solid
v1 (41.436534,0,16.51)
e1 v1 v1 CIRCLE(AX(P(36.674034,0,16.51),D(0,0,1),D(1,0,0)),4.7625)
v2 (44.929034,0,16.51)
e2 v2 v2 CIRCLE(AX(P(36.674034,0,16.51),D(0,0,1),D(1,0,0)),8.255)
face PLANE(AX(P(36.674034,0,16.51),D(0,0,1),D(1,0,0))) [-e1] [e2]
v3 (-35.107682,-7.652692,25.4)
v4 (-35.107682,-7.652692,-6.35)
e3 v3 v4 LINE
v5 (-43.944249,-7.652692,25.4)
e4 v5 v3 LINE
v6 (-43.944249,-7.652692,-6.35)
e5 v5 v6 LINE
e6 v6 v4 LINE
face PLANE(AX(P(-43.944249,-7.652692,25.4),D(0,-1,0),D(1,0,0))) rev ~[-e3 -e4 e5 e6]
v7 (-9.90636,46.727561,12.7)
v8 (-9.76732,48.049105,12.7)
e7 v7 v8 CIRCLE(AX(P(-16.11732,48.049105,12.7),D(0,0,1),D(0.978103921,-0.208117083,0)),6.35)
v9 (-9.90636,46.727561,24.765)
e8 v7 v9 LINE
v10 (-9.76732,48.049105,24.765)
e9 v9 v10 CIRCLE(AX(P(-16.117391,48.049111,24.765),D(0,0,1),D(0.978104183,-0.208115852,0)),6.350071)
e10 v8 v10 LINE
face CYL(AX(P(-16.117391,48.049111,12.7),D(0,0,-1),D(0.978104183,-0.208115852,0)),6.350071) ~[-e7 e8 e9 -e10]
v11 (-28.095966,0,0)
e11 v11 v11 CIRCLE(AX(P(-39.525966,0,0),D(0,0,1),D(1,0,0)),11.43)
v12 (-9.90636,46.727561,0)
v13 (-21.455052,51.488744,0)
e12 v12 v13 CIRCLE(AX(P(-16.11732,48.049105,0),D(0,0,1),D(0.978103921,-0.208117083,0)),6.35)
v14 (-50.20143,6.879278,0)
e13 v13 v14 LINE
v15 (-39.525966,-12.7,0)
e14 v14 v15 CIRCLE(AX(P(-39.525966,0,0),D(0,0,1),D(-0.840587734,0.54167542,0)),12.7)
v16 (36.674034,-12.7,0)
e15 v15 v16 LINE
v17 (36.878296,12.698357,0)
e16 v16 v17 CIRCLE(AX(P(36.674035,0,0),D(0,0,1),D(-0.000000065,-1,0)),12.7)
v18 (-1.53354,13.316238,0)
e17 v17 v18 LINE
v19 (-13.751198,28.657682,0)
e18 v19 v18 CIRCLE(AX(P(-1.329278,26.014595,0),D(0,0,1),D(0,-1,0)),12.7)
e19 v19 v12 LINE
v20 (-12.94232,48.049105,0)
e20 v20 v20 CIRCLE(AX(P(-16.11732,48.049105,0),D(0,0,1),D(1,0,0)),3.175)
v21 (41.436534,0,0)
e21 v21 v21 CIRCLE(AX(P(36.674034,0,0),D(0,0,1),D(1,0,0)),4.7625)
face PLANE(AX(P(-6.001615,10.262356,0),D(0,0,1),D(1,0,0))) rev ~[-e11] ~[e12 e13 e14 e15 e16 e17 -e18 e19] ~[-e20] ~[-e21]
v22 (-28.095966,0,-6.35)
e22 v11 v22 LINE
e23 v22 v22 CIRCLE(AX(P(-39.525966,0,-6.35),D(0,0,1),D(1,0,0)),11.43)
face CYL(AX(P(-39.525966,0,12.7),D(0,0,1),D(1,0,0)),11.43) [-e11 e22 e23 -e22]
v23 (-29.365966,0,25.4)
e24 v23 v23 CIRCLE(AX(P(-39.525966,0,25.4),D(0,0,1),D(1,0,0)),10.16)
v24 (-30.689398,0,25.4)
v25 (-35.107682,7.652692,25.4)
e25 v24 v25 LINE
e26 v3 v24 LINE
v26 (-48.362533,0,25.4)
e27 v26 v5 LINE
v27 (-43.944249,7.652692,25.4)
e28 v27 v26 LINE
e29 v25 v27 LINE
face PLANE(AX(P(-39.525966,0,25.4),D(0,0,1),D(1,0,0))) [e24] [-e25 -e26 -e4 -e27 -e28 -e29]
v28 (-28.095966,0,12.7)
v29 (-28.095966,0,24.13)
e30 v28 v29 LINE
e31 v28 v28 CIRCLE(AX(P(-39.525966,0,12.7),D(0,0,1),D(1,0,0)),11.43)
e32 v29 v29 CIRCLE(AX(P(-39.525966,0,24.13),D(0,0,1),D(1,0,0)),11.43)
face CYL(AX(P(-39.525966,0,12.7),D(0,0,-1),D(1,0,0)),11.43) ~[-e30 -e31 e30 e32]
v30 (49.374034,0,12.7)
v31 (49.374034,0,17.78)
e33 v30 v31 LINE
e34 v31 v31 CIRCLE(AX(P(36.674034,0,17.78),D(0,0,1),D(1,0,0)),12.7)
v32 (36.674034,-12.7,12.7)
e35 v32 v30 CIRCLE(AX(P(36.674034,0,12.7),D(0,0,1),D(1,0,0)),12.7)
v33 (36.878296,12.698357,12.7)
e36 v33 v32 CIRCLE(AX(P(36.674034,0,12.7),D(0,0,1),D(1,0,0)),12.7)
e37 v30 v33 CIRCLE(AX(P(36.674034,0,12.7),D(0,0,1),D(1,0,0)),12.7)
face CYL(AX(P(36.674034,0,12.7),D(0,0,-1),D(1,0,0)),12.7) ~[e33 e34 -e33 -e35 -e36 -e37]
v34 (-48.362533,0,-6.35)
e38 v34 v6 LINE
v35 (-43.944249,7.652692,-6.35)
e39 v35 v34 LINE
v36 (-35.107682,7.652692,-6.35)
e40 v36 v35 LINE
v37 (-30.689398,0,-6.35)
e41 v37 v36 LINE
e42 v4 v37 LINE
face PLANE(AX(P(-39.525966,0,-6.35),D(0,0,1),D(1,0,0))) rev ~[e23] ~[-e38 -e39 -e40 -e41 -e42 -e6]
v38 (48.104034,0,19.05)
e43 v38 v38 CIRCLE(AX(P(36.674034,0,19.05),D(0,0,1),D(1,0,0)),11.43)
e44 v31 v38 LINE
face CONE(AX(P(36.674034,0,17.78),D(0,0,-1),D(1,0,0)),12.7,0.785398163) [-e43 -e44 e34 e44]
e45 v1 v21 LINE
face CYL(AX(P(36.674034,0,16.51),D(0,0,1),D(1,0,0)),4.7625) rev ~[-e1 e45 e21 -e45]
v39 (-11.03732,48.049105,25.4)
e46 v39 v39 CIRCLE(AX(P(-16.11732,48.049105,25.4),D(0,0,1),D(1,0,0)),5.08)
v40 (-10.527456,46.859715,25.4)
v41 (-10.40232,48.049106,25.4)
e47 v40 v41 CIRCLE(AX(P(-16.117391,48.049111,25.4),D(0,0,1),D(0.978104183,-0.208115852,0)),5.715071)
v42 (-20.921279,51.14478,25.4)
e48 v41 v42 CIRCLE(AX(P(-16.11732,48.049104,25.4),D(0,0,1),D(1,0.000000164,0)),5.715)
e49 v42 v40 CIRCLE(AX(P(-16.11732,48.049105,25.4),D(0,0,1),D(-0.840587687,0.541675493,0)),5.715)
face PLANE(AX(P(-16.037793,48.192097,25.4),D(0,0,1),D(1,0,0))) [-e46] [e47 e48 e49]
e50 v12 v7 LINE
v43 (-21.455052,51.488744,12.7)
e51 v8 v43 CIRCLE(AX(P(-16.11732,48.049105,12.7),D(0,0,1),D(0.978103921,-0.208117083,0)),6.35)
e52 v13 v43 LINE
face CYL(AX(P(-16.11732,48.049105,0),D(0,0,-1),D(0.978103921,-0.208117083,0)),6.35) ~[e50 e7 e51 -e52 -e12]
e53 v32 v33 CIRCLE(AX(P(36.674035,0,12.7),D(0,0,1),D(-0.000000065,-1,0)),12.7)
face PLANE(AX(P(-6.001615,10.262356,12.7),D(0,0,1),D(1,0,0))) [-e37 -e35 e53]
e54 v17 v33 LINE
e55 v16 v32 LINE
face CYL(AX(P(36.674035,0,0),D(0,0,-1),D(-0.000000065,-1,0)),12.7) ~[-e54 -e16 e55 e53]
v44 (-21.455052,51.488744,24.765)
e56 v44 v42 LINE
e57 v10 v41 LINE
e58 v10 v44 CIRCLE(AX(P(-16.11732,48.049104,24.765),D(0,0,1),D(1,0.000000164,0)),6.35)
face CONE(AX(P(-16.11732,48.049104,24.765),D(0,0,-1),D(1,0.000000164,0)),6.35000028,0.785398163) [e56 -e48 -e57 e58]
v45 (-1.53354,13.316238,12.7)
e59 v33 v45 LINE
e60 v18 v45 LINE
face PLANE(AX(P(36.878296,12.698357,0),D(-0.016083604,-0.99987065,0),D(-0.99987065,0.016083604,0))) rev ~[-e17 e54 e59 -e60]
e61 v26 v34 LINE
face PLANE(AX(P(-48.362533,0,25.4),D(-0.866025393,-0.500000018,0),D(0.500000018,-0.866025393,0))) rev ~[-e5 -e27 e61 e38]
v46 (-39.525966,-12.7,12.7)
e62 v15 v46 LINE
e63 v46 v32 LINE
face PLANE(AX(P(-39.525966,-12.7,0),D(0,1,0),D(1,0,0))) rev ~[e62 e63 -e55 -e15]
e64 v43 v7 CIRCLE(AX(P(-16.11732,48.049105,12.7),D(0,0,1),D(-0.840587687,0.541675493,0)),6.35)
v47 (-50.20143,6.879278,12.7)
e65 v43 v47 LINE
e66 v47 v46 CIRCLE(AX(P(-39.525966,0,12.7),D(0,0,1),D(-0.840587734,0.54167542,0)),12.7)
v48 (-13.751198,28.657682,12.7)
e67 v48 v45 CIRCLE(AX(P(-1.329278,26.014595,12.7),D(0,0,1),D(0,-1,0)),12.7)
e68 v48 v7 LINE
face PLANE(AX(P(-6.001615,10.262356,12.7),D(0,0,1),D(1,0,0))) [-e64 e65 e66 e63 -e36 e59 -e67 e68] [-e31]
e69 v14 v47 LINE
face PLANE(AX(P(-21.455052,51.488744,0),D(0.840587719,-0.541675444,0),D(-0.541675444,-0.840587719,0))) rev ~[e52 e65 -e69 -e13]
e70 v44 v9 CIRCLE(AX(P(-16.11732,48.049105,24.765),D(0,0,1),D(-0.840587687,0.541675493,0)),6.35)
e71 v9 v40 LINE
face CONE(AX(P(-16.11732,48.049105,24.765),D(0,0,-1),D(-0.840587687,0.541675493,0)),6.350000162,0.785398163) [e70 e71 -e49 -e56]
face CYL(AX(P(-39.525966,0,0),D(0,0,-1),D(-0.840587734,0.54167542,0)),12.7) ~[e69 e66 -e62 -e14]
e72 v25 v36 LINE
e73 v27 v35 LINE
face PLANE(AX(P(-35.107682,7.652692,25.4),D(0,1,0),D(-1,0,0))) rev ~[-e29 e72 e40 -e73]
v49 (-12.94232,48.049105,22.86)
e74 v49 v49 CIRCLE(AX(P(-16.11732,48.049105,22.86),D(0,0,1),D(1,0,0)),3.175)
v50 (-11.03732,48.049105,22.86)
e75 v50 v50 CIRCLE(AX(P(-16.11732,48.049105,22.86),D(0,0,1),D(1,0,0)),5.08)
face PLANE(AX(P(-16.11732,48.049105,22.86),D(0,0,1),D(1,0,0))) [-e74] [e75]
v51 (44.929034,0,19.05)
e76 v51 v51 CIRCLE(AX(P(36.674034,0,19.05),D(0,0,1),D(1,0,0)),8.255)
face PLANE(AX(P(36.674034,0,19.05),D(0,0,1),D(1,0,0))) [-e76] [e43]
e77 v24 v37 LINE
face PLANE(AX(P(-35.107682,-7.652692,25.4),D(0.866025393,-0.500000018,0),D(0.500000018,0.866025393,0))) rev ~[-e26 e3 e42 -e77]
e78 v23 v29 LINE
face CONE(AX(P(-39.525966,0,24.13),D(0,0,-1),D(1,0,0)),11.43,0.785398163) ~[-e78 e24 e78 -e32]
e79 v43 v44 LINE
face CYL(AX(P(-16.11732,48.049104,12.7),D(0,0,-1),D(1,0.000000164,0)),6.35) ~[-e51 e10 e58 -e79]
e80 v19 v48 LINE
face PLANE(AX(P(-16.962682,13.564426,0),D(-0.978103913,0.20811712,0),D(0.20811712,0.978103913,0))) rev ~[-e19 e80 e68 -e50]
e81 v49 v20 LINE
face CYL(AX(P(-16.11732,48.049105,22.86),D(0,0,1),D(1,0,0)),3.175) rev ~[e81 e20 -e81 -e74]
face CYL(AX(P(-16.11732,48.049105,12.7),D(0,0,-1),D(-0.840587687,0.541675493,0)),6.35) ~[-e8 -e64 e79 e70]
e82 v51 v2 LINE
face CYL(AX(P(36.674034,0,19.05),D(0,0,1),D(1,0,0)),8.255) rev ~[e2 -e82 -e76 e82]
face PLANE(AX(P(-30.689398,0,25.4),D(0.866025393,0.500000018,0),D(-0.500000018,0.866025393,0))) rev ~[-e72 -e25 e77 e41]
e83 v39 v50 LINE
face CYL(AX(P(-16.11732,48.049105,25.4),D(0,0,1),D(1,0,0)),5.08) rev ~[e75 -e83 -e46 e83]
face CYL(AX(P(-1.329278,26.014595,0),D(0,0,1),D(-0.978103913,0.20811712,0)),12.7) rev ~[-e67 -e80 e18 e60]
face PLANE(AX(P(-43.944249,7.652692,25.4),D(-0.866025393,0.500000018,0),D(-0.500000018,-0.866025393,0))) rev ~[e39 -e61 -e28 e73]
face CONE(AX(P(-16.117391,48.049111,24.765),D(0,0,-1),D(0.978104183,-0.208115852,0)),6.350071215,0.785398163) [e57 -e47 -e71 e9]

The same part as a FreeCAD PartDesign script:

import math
import FreeCAD as App
import Part
import Sketcher

V = App.Vector
Q = App.Units.Quantity


def edges_at(feature, points):
    """Names of the edges that pass closest to the given points."""
    edges = feature.Shape.Edges
    near = lambda p: min(range(len(edges)), key=lambda i: edges[i].distToShape(Part.Vertex(*p))[0])
    return sorted({f"Edge{near(p) + 1}" for p in points})

doc = App.newDocument("Part")
body = doc.addObject("PartDesign::Body", "Body")

# Sketch on XY plane
sketch1 = body.newObject("Sketcher::SketchObject", "Sketch")
sketch1.AttachmentSupport = (doc.getObject("XY_Plane"), [""])
sketch1.MapMode = "FlatFace"
sketch1.addGeometry(Part.LineSegment(V(-21, 51, 0), V(-50, 7, 0)), False)
sketch1.addGeometry(Part.ArcOfCircle(Part.Circle(V(-40, 0, 0), V(0, 0, 1), 13), math.radians(147), math.radians(270)), False)
sketch1.addGeometry(Part.LineSegment(V(-40, -13, 0), V(37, -13, 0)), False)
sketch1.addGeometry(Part.ArcOfCircle(Part.Circle(V(37, 0, 0), V(0, 0, 1), 13), math.radians(-90), math.radians(89)), False)
sketch1.addGeometry(Part.LineSegment(V(37, 13, 0), V(-17, 14, 0)), False)
sketch1.addGeometry(Part.LineSegment(V(-17, 14, 0), V(-10, 47, 0)), False)
sketch1.addGeometry(Part.ArcOfCircle(Part.Circle(V(-16, 48, 0), V(0, 0, 1), 6), math.radians(-12), math.radians(147)), False)
sketch1.addConstraint(Sketcher.Constraint("Tangent", 0, 2, 1, 1))
sketch1.addConstraint(Sketcher.Constraint("Tangent", 1, 2, 2, 1))
sketch1.addConstraint(Sketcher.Constraint("Tangent", 2, 2, 3, 1))
sketch1.addConstraint(Sketcher.Constraint("Tangent", 3, 2, 4, 1))
sketch1.addConstraint(Sketcher.Constraint("Coincident", 4, 2, 5, 1))
sketch1.addConstraint(Sketcher.Constraint("Tangent", 5, 2, 6, 1))
sketch1.addConstraint(Sketcher.Constraint("Tangent", 6, 2, 0, 1))
sketch1.addConstraint(Sketcher.Constraint("Horizontal", 2))
sketch1.addConstraint(Sketcher.Constraint("Equal", 1, 3))
sketch1.addConstraint(Sketcher.Constraint("PointOnObject", 1, 3, -1))
sketch1.addConstraint(Sketcher.Constraint("Radius", 1, Q("0.5 in")))
sketch1.addConstraint(Sketcher.Constraint("DistanceX", 2, 1, 2, 2, Q("3 in")))
sketch1.addConstraint(Sketcher.Constraint("Radius", 6, Q("0.25 in")))
sketch1.addConstraint(Sketcher.Constraint("DistanceX", 6, 3, -1, 1, 16.11732))
sketch1.addConstraint(Sketcher.Constraint("DistanceX", 0, 2, -1, 1, 50.20143))
sketch1.addConstraint(Sketcher.Constraint("DistanceY", -1, 1, 0, 2, 6.879278))
sketch1.addConstraint(Sketcher.Constraint("DistanceX", 5, 2, -1, 1, 9.90636))
sketch1.addConstraint(Sketcher.Constraint("DistanceX", 3, 3, 3, 2, 0.204261))
pad1 = body.newObject("PartDesign::Pad", "Pad")
pad1.Profile = sketch1
pad1.Length = Q("0.5 in")

# Sketch on XY plane
sketch2 = body.newObject("Sketcher::SketchObject", "Sketch001")
sketch2.AttachmentSupport = (doc.getObject("XY_Plane"), [""])
sketch2.MapMode = "FlatFace"
sketch2.addGeometry(Part.LineSegment(V(-21, 51, 0), V(-50, 7, 0)), False)
sketch2.addGeometry(Part.ArcOfCircle(Part.Circle(V(-40, 0, 0), V(0, 0, 1), 13), math.radians(147), math.radians(270)), False)
sketch2.addGeometry(Part.LineSegment(V(-40, -13, 0), V(37, -13, 0)), False)
sketch2.addGeometry(Part.ArcOfCircle(Part.Circle(V(37, 0, 0), V(0, 0, 1), 13), math.radians(-90), math.radians(89)), False)
sketch2.addGeometry(Part.LineSegment(V(37, 13, 0), V(-17, 14, 0)), False)
sketch2.addGeometry(Part.LineSegment(V(-17, 14, 0), V(-10, 47, 0)), False)
sketch2.addGeometry(Part.ArcOfCircle(Part.Circle(V(-16, 48, 0), V(0, 0, 1), 6), math.radians(-12), math.radians(147)), False)
sketch2.addConstraint(Sketcher.Constraint("Tangent", 0, 2, 1, 1))
sketch2.addConstraint(Sketcher.Constraint("Tangent", 1, 2, 2, 1))
sketch2.addConstraint(Sketcher.Constraint("Tangent", 2, 2, 3, 1))
sketch2.addConstraint(Sketcher.Constraint("Tangent", 3, 2, 4, 1))
sketch2.addConstraint(Sketcher.Constraint("Coincident", 4, 2, 5, 1))
sketch2.addConstraint(Sketcher.Constraint("Tangent", 5, 2, 6, 1))
sketch2.addConstraint(Sketcher.Constraint("Tangent", 6, 2, 0, 1))
sketch2.addConstraint(Sketcher.Constraint("Horizontal", 2))
sketch2.addConstraint(Sketcher.Constraint("Equal", 1, 3))
sketch2.addConstraint(Sketcher.Constraint("PointOnObject", 1, 3, -1))
sketch2.addConstraint(Sketcher.Constraint("Radius", 1, Q("0.5 in")))
sketch2.addConstraint(Sketcher.Constraint("DistanceX", 2, 1, 2, 2, Q("3 in")))
sketch2.addConstraint(Sketcher.Constraint("Radius", 6, Q("0.25 in")))
sketch2.addConstraint(Sketcher.Constraint("DistanceX", 6, 3, -1, 1, 16.11732))
sketch2.addConstraint(Sketcher.Constraint("DistanceX", 0, 2, -1, 1, 50.20143))
sketch2.addConstraint(Sketcher.Constraint("DistanceY", -1, 1, 0, 2, 6.879278))
sketch2.addConstraint(Sketcher.Constraint("DistanceX", 5, 2, -1, 1, 9.90636))
sketch2.addConstraint(Sketcher.Constraint("DistanceX", 3, 3, 3, 2, 0.204261))
pad2 = body.newObject("PartDesign::Pad", "Pad001")
pad2.Profile = sketch2
pad2.Length = Q("0.5 in")

# Sketch on XY plane
sketch3 = body.newObject("Sketcher::SketchObject", "Sketch002")
sketch3.AttachmentSupport = (doc.getObject("XY_Plane"), [""])
sketch3.MapMode = "FlatFace"
sketch3.AttachmentOffset = App.Placement(V(0, 0, 0.5 * 25.4), App.Rotation())
sketch3.addGeometry(Part.ArcOfCircle(Part.Circle(V(-16.117391, 48.049111, 0), V(0, 0, 1), 6.350071), math.radians(-12.011959), math.radians(-0.000059)), False)
sketch3.addGeometry(Part.ArcOfCircle(Part.Circle(V(-16.11732, 48.049104, 0), V(0, 0, 1), 6.35), math.radians(0.000009), math.radians(147.202225)), False)
sketch3.addGeometry(Part.ArcOfCircle(Part.Circle(V(-16.11732, 48.049105, 0), V(0, 0, 1), 6.35), math.radians(147.20223), math.radians(347.987969)), False)
sketch3.addConstraint(Sketcher.Constraint("Coincident", 0, 2, 1, 1))
sketch3.addConstraint(Sketcher.Constraint("Coincident", 1, 2, 2, 1))
sketch3.addConstraint(Sketcher.Constraint("Coincident", 2, 2, 0, 1))
sketch3.addConstraint(Sketcher.Constraint("Coincident", 2, 3, 1, 3))
sketch3.addConstraint(Sketcher.Constraint("Radius", 1, Q("0.25 in")))
sketch3.addConstraint(Sketcher.Constraint("Radius", 0, 6.350071))
sketch3.addConstraint(Sketcher.Constraint("DistanceX", 0, 3, -1, 1, 16.117391))
sketch3.addConstraint(Sketcher.Constraint("DistanceY", -1, 1, 0, 3, 48.049111))
sketch3.addConstraint(Sketcher.Constraint("DistanceX", 2, 2, -1, 1, 9.90636))
sketch3.addConstraint(Sketcher.Constraint("DistanceX", 1, 2, 0, 3, 5.337661))
sketch3.addConstraint(Sketcher.Constraint("DistanceY", 0, 2, 1, 2, 3.439639))
pad3 = body.newObject("PartDesign::Pad", "Pad002")
pad3.Profile = sketch3
pad3.Length = Q("0.5 in")

# Sketch on XY plane
sketch4 = body.newObject("Sketcher::SketchObject", "Sketch003")
sketch4.AttachmentSupport = (doc.getObject("XY_Plane"), [""])
sketch4.MapMode = "FlatFace"
sketch4.AttachmentOffset = App.Placement(V(0, 0, 1 * 25.4), App.Rotation())
sketch4.addGeometry(Part.Circle(V(-16, 48, 0), V(0, 0, 1), 5), False)
sketch4.addConstraint(Sketcher.Constraint("Diameter", 0, Q("0.4 in")))
sketch4.addConstraint(Sketcher.Constraint("DistanceX", 0, 3, -1, 1, 16.11732))
sketch4.addConstraint(Sketcher.Constraint("DistanceY", -1, 1, 0, 3, 48.049105))
pocket1 = body.newObject("PartDesign::Pocket", "Pocket")
pocket1.Profile = sketch4
pocket1.Length = Q("0.1 in")
doc.recompute()

chamfer = body.newObject("PartDesign::Chamfer", "Chamfer")
chamfer.Base = (pocket1, edges_at(pocket1, [(-18.538, 42.178, 25.4)]))
chamfer.Size = Q("0.025 in")

# Sketch on XY plane
sketch5 = body.newObject("Sketcher::SketchObject", "Sketch004")
sketch5.AttachmentSupport = (doc.getObject("XY_Plane"), [""])
sketch5.MapMode = "FlatFace"
sketch5.AttachmentOffset = App.Placement(V(0, 0, 0.9 * 25.4), App.Rotation())
sketch5.addGeometry(Part.Circle(V(-16.1, 48, 0), V(0, 0, 1), 3.2), False)
sketch5.addConstraint(Sketcher.Constraint("Diameter", 0, Q("0.25 in")))
sketch5.addConstraint(Sketcher.Constraint("DistanceX", 0, 3, -1, 1, 16.11732))
sketch5.addConstraint(Sketcher.Constraint("DistanceY", -1, 1, 0, 3, 48.049105))
pocket2 = body.newObject("PartDesign::Pocket", "Pocket001")
pocket2.Profile = sketch5
pocket2.Type = "ThroughAll"
doc.recompute()

fillet = body.newObject("PartDesign::Fillet", "Fillet")
fillet.Base = (pocket2, edges_at(pocket2, [(-16.963, 13.564, 6.35)]))
fillet.Radius = Q("0.5 in")

# Sketch on XY plane
sketch6 = body.newObject("Sketcher::SketchObject", "Sketch005")
sketch6.AttachmentSupport = (doc.getObject("XY_Plane"), [""])
sketch6.MapMode = "FlatFace"
sketch6.AttachmentOffset = App.Placement(V(0, 0, 0.5 * 25.4), App.Rotation())
sketch6.addGeometry(Part.Circle(V(37, 0, 0), V(0, 0, 1), 13), False)
sketch6.addConstraint(Sketcher.Constraint("PointOnObject", 0, 3, -1))
sketch6.addConstraint(Sketcher.Constraint("Diameter", 0, Q("1 in")))
sketch6.addConstraint(Sketcher.Constraint("DistanceX", -1, 1, 0, 3, 36.674034))
pad4 = body.newObject("PartDesign::Pad", "Pad003")
pad4.Profile = sketch6
pad4.Length = Q("0.25 in")

# Sketch on XY plane
sketch7 = body.newObject("Sketcher::SketchObject", "Sketch006")
sketch7.AttachmentSupport = (doc.getObject("XY_Plane"), [""])
sketch7.MapMode = "FlatFace"
sketch7.AttachmentOffset = App.Placement(V(0, 0, 0.75 * 25.4), App.Rotation())
sketch7.addGeometry(Part.Circle(V(37, 0, 0), V(0, 0, 1), 8), False)
sketch7.addConstraint(Sketcher.Constraint("PointOnObject", 0, 3, -1))
sketch7.addConstraint(Sketcher.Constraint("Diameter", 0, Q("0.65 in")))
sketch7.addConstraint(Sketcher.Constraint("DistanceX", -1, 1, 0, 3, 36.674034))
pocket3 = body.newObject("PartDesign::Pocket", "Pocket002")
pocket3.Profile = sketch7
pocket3.Length = Q("0.1 in")

# Sketch on XY plane
sketch8 = body.newObject("Sketcher::SketchObject", "Sketch007")
sketch8.AttachmentSupport = (doc.getObject("XY_Plane"), [""])
sketch8.MapMode = "FlatFace"
sketch8.AttachmentOffset = App.Placement(V(0, 0, 0.65 * 25.4), App.Rotation())
sketch8.addGeometry(Part.Circle(V(36.7, 0, 0), V(0, 0, 1), 4.8), False)
sketch8.addConstraint(Sketcher.Constraint("PointOnObject", 0, 3, -1))
sketch8.addConstraint(Sketcher.Constraint("Diameter", 0, Q("0.375 in")))
sketch8.addConstraint(Sketcher.Constraint("DistanceX", -1, 1, 0, 3, 36.674034))
pocket4 = body.newObject("PartDesign::Pocket", "Pocket003")
pocket4.Profile = sketch8
pocket4.Type = "ThroughAll"

# Sketch on XY plane
sketch9 = body.newObject("Sketcher::SketchObject", "Sketch008")
sketch9.AttachmentSupport = (doc.getObject("XY_Plane"), [""])
sketch9.MapMode = "FlatFace"
sketch9.AttachmentOffset = App.Placement(V(0, 0, 0.5 * 25.4), App.Rotation())
sketch9.addGeometry(Part.Circle(V(-40, 0, 0), V(0, 0, 1), 11), False)
sketch9.addConstraint(Sketcher.Constraint("PointOnObject", 0, 3, -1))
sketch9.addConstraint(Sketcher.Constraint("Diameter", 0, Q("0.9 in")))
sketch9.addConstraint(Sketcher.Constraint("DistanceX", 0, 3, -1, 1, 39.525966))
pad5 = body.newObject("PartDesign::Pad", "Pad004")
pad5.Profile = sketch9
pad5.Type = "TwoLengths"
pad5.Length = Q("0.5 in")
pad5.Length2 = Q("0.75 in")

# Sketch on XY plane
sketch10 = body.newObject("Sketcher::SketchObject", "Sketch009")
sketch10.AttachmentSupport = (doc.getObject("XY_Plane"), [""])
sketch10.MapMode = "FlatFace"
sketch10.AttachmentOffset = App.Placement(V(0, 0, 1 * 25.4), App.Rotation())
sketch10.addGeometry(Part.LineSegment(V(-35, 8, 0), V(-44, 8, 0)), False)
sketch10.addGeometry(Part.LineSegment(V(-44, 8, 0), V(-48, 0, 0)), False)
sketch10.addGeometry(Part.LineSegment(V(-48, 0, 0), V(-44, -8, 0)), False)
sketch10.addGeometry(Part.LineSegment(V(-44, -8, 0), V(-35, -8, 0)), False)
sketch10.addGeometry(Part.LineSegment(V(-35, -8, 0), V(-31, 0, 0)), False)
sketch10.addGeometry(Part.LineSegment(V(-31, 0, 0), V(-35, 8, 0)), False)
sketch10.addConstraint(Sketcher.Constraint("Coincident", 0, 2, 1, 1))
sketch10.addConstraint(Sketcher.Constraint("Coincident", 1, 2, 2, 1))
sketch10.addConstraint(Sketcher.Constraint("Coincident", 2, 2, 3, 1))
sketch10.addConstraint(Sketcher.Constraint("Coincident", 3, 2, 4, 1))
sketch10.addConstraint(Sketcher.Constraint("Coincident", 4, 2, 5, 1))
sketch10.addConstraint(Sketcher.Constraint("Coincident", 5, 2, 0, 1))
sketch10.addConstraint(Sketcher.Constraint("Horizontal", 0))
sketch10.addConstraint(Sketcher.Constraint("Horizontal", 3))
sketch10.addConstraint(Sketcher.Constraint("Symmetric", 0, 2, 2, 2, -1))
sketch10.addConstraint(Sketcher.Constraint("PointOnObject", 1, 2, -1))
sketch10.addConstraint(Sketcher.Constraint("PointOnObject", 4, 2, -1))
sketch10.addConstraint(Sketcher.Constraint("Parallel", 1, 4))
sketch10.addConstraint(Sketcher.Constraint("Parallel", 2, 5))
sketch10.addConstraint(Sketcher.Constraint("Angle", 1, Q("-120.000001 deg")))
sketch10.addConstraint(Sketcher.Constraint("DistanceX", 4, 2, -1, 1, 30.689398))
sketch10.addConstraint(Sketcher.Constraint("DistanceX", 0, 2, 0, 1, 8.836567))
sketch10.addConstraint(Sketcher.Constraint("DistanceX", 0, 2, -1, 1, 43.944249))
pocket5 = body.newObject("PartDesign::Pocket", "Pocket004")
pocket5.Profile = sketch10
pocket5.Type = "ThroughAll"
doc.recompute()

chamfer2 = body.newObject("PartDesign::Chamfer", "Chamfer001")
chamfer2.Base = (pocket5, edges_at(pocket5, [(-50.956, 0, 25.4), (23.974, 0, 19.05)]))
chamfer2.Size = Q("0.05 in")

doc.recompute()
